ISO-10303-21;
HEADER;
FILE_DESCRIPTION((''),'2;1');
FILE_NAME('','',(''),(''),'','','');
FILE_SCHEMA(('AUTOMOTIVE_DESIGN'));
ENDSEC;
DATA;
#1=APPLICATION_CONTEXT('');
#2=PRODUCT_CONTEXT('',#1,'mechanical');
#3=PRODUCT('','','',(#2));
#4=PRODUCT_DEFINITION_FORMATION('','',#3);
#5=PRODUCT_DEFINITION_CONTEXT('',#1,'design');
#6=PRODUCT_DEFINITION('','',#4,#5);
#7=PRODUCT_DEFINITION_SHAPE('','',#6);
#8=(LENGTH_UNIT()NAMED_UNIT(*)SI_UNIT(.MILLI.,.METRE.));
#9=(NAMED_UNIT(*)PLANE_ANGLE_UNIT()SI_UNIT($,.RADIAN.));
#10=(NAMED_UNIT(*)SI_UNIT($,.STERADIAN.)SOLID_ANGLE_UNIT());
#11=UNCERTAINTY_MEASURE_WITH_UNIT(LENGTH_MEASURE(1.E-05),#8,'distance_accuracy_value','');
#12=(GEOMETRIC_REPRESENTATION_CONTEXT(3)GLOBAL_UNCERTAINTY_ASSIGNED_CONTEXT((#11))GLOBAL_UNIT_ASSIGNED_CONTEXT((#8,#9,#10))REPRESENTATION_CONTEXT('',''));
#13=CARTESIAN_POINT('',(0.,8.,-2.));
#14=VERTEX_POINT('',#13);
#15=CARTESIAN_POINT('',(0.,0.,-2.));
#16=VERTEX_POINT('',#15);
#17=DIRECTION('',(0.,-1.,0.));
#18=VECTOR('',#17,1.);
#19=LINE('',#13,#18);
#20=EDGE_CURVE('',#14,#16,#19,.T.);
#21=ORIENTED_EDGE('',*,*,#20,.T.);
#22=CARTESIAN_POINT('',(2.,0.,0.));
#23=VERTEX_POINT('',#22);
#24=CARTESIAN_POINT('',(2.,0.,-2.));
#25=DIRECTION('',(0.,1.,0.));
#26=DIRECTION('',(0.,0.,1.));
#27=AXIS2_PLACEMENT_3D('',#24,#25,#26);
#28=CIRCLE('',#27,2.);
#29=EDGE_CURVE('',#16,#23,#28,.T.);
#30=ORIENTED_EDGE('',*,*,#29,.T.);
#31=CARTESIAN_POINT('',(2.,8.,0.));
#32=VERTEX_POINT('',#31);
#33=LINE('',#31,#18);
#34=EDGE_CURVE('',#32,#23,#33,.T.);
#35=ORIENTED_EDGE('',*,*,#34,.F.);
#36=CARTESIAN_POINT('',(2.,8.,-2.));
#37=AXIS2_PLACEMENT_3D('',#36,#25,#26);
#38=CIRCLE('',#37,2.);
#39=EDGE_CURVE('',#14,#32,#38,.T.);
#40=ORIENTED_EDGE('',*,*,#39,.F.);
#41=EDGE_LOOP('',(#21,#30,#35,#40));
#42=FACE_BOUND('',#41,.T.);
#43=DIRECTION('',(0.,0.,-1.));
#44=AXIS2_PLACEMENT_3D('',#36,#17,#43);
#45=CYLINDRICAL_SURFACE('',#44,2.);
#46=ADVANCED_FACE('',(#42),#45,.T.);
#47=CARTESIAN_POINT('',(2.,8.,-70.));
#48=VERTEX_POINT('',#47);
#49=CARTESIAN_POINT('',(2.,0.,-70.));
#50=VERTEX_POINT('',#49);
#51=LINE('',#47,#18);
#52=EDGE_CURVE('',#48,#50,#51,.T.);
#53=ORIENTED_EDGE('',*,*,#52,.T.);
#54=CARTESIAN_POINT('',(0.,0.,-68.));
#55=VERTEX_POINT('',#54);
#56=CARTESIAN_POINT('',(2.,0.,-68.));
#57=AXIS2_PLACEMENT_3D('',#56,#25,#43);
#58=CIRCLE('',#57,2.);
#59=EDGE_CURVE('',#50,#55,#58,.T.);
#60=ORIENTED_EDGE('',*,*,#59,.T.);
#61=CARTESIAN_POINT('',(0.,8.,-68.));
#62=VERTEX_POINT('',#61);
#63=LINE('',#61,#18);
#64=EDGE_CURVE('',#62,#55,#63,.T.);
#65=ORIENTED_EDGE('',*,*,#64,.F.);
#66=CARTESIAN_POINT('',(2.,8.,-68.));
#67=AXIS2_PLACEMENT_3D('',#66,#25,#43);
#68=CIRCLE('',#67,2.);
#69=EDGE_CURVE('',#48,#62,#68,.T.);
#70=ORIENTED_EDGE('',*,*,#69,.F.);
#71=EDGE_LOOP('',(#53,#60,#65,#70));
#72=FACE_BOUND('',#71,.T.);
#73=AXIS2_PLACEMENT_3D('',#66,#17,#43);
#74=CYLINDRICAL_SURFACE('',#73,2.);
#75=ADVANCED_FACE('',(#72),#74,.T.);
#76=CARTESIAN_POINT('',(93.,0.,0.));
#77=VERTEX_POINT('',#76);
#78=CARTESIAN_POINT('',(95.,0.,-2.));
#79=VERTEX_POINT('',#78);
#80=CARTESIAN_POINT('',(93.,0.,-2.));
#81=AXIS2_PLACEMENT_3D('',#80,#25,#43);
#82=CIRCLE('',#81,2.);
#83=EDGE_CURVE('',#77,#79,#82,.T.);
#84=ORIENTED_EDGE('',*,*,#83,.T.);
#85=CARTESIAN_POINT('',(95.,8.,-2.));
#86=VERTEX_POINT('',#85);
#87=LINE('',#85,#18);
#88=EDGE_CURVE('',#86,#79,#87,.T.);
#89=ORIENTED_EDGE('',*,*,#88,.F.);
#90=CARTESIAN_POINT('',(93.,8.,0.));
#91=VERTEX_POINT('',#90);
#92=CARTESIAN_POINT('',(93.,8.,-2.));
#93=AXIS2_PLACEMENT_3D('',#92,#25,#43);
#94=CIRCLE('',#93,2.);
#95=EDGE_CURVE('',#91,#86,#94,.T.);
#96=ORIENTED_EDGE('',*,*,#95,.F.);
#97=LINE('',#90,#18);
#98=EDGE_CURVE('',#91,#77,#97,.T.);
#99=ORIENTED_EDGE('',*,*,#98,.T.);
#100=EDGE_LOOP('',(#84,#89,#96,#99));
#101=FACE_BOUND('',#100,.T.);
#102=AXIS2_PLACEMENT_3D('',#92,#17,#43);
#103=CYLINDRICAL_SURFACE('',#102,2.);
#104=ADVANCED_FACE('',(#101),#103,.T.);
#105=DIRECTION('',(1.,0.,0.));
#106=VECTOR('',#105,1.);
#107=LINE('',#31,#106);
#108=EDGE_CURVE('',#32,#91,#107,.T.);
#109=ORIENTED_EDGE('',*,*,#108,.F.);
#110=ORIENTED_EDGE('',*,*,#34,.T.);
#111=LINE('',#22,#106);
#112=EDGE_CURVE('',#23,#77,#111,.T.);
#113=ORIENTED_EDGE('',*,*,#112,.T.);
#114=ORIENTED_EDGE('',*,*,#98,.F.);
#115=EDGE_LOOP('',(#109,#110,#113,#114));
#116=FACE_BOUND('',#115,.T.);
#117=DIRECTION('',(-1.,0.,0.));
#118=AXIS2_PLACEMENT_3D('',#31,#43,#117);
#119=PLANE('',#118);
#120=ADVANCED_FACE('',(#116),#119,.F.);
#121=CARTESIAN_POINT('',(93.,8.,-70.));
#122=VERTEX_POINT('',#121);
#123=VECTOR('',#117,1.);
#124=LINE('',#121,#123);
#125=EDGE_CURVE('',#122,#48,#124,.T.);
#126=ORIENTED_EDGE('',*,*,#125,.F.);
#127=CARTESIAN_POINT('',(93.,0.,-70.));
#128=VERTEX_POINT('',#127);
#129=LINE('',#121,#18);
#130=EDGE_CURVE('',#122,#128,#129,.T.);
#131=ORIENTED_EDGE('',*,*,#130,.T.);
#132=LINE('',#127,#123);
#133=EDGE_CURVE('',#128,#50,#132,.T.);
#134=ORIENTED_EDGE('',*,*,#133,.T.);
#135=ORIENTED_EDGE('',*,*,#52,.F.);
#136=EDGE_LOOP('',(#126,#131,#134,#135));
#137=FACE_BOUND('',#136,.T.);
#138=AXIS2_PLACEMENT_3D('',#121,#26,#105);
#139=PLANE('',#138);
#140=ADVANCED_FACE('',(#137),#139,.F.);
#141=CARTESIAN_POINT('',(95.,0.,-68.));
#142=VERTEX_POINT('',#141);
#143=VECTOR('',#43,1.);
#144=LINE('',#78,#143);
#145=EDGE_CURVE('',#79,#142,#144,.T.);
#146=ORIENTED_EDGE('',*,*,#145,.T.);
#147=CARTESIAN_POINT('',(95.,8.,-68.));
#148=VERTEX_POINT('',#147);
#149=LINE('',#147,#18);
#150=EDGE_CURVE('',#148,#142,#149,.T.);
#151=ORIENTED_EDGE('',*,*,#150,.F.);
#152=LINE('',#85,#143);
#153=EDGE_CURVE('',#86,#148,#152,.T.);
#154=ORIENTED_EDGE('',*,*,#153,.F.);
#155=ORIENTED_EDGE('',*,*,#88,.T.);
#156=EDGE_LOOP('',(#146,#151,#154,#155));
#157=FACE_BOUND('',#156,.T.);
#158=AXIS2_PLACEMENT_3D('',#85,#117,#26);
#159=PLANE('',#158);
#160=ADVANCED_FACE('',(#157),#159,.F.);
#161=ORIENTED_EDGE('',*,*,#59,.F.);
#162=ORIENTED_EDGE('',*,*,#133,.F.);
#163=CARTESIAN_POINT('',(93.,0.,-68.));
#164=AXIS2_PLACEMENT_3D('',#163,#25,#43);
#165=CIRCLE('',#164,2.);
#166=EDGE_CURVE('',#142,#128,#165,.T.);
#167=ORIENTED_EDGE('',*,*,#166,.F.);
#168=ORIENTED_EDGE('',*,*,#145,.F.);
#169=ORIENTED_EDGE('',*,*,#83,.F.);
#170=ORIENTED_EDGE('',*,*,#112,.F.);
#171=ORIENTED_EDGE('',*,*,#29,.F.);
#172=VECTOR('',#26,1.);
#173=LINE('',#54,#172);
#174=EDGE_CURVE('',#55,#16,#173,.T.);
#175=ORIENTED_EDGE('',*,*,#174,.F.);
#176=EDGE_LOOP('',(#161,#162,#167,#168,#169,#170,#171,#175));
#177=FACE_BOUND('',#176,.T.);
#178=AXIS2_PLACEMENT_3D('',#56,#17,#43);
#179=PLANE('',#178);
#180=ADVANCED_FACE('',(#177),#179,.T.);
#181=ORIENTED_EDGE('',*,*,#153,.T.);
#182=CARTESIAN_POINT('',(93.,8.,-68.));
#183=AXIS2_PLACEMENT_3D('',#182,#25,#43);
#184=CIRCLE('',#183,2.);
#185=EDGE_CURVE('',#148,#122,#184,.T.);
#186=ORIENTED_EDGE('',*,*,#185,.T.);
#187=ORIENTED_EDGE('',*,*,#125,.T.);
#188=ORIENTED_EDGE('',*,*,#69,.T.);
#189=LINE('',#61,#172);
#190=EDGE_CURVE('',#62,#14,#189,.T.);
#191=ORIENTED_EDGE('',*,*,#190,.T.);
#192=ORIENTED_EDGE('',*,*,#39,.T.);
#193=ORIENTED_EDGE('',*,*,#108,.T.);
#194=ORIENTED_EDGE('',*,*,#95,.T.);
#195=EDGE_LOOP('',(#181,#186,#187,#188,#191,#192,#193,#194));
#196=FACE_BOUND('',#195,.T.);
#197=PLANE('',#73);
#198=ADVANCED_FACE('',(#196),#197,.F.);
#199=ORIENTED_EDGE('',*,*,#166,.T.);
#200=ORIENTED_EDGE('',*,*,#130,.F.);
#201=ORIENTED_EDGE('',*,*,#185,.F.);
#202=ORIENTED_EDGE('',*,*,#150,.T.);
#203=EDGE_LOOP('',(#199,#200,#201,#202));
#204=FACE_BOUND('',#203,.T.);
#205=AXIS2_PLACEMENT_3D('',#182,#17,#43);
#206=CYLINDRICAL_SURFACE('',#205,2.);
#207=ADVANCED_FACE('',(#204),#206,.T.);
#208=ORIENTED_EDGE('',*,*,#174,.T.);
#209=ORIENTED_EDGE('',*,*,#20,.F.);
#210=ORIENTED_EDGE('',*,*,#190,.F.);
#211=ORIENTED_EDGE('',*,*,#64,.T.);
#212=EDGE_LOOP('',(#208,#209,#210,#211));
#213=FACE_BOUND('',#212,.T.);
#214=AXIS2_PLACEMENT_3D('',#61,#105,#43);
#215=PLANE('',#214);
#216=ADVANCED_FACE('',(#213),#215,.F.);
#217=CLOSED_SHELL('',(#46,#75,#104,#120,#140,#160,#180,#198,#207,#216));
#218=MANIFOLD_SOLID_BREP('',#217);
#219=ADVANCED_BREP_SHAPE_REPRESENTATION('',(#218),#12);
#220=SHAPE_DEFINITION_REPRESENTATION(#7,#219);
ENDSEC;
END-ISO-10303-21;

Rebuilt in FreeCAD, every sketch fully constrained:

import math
import FreeCAD as App
import Part
import Sketcher
from FreeCAD import Vector

doc = App.newDocument("Part")
body = doc.addObject("PartDesign::Body", "Body")

sketch1 = doc.addObject("Sketcher::SketchObject", "Sketch")
body.addObject(sketch1)
sketch1.AttachmentSupport = (doc.XZ_Plane, [""])
sketch1.MapMode = "FlatFace"
sketch1.addGeometry([
    Part.LineSegment(Vector(2, 0, 0), Vector(93, 0, 0)),
    Part.ArcOfCircle(Part.Circle(Vector(93, -2, 0), Vector(0, 0, 1), 2), math.radians(0), math.radians(90)),
    Part.LineSegment(Vector(95, -2, 0), Vector(95, -68, 0)),
    Part.ArcOfCircle(Part.Circle(Vector(93, -68, 0), Vector(0, 0, 1), 2), math.radians(-90), math.radians(0)),
    Part.LineSegment(Vector(93, -70, 0), Vector(2, -70, 0)),
    Part.ArcOfCircle(Part.Circle(Vector(2, -68, 0), Vector(0, 0, 1), 2), math.radians(-180), math.radians(-90)),
    Part.LineSegment(Vector(0, -68, 0), Vector(0, -2, 0)),
    Part.ArcOfCircle(Part.Circle(Vector(2, -2, 0), Vector(0, 0, 1), 2), math.radians(90), math.radians(180)),
], False)
sketch1.addConstraint([
    Sketcher.Constraint("Tangent", 0, 2, 1, 2),
    Sketcher.Constraint("Tangent", 1, 1, 2, 1),
    Sketcher.Constraint("Tangent", 2, 2, 3, 2),
    Sketcher.Constraint("Tangent", 3, 1, 4, 1),
    Sketcher.Constraint("Tangent", 4, 2, 5, 2),
    Sketcher.Constraint("Tangent", 5, 1, 6, 1),
    Sketcher.Constraint("Tangent", 6, 2, 7, 2),
    Sketcher.Constraint("Tangent", 7, 1, 0, 1),
    Sketcher.Constraint("Horizontal", 0),
    Sketcher.Constraint("Vertical", 2),
    Sketcher.Constraint("Horizontal", 4),
    Sketcher.Constraint("Vertical", 6),
    Sketcher.Constraint("Equal", 1, 3),
    Sketcher.Constraint("Equal", 3, 5),
    Sketcher.Constraint("Equal", 5, 7),
    Sketcher.Constraint("PointOnObject", 0, 2, -1),
    Sketcher.Constraint("PointOnObject", 5, 1, -2),
    Sketcher.Constraint("Radius", 1, 2.0),
    Sketcher.Constraint("DistanceX", 0, 1, 0, 2, 91.0),
    Sketcher.Constraint("DistanceY", 2, 2, 2, 1, 66.0),
])
pad1 = doc.addObject("PartDesign::Pad", "Pad")
body.addObject(pad1)
pad1.Profile = sketch1
pad1.Length = 8
pad1.Reversed = True

doc.recompute()
